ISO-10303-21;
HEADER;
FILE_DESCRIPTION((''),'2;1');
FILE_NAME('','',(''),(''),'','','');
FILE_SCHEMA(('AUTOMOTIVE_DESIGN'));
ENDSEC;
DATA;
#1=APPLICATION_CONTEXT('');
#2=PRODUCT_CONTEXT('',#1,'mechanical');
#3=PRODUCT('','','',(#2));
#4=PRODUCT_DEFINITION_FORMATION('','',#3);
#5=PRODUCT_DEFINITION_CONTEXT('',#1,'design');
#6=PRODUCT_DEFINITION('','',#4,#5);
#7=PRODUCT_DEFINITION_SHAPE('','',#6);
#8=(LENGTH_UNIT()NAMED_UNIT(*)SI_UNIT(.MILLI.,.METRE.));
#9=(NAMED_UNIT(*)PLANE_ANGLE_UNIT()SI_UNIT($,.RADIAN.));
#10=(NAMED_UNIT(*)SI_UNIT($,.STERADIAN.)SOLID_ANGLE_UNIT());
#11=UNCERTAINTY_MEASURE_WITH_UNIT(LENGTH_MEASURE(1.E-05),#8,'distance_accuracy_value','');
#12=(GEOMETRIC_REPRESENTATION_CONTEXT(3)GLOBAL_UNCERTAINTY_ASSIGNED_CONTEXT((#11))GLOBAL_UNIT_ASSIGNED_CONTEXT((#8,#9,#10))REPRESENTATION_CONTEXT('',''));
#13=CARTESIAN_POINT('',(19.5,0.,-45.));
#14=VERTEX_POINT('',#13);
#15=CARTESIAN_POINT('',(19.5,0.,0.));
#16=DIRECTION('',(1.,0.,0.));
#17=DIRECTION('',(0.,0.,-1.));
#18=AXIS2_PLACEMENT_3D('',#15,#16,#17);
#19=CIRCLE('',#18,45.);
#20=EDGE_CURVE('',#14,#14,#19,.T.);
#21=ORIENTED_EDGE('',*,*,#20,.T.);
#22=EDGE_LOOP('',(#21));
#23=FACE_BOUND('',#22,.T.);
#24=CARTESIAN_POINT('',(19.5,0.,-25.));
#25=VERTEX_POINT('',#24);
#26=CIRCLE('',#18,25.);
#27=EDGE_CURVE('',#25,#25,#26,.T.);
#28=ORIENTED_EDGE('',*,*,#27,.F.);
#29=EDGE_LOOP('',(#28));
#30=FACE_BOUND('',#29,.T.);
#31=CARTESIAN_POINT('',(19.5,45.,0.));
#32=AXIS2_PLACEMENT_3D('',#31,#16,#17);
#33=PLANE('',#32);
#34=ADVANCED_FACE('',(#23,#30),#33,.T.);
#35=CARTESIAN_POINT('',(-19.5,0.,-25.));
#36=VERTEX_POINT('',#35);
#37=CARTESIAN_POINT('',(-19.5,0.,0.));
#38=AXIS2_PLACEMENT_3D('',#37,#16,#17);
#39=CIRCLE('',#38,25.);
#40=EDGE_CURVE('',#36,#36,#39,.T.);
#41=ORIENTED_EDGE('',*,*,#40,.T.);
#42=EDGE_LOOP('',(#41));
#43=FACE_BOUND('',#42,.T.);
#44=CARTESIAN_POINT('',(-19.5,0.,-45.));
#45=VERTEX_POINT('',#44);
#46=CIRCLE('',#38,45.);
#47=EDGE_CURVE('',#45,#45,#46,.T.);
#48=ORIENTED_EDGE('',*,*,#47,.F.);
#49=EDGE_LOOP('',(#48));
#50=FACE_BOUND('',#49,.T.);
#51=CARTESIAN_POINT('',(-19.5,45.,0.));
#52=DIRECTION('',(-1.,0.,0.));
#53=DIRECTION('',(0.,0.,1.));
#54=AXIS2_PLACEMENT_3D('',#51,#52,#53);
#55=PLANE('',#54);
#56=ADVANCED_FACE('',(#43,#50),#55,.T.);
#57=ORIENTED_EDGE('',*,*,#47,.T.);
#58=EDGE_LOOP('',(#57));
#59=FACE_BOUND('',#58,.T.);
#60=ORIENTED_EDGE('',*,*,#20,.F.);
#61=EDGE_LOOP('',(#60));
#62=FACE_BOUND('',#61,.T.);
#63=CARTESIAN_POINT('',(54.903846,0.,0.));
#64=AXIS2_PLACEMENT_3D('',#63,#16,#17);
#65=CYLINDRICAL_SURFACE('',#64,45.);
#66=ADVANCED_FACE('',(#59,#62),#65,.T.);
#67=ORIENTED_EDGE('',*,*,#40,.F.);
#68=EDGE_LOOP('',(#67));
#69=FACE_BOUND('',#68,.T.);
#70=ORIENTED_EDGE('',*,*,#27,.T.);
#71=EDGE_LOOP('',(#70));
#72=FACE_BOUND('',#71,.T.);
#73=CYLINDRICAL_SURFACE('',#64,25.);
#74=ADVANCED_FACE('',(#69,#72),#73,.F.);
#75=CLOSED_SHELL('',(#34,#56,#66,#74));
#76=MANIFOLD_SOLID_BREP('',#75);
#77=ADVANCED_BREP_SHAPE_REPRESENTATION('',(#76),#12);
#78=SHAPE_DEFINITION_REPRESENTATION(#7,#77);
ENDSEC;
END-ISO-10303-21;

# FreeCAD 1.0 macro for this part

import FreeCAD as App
import Part
import Sketcher
from FreeCAD import Vector


def add_polygon(sketch, points):
    """Adds a closed chain of lines whose ends are joined by coincident constraints."""
    first, n = sketch.GeometryCount, len(points)
    for a, b in zip(points, points[1:] + points[:1]):
        sketch.addGeometry(Part.LineSegment(App.Vector(*a, 0), App.Vector(*b, 0)), False)
    for i in range(n):
        sketch.addConstraint(Sketcher.Constraint("Coincident", first + i, 2, first + (i + 1) % n, 1))

doc = App.newDocument("Part")
body = doc.addObject("PartDesign::Body", "Body")

# Sketch on XY plane
sketch1 = doc.addObject("Sketcher::SketchObject", "Sketch")
body.addObject(sketch1)
sketch1.AttachmentSupport = (doc.XY_Plane, [""])
sketch1.MapMode = "FlatFace"
add_polygon(sketch1, [(-20, 45), (-20, 25), (20, 25), (20, 45)])  # lines 0-3
sketch1.addConstraint(Sketcher.Constraint("Vertical", 0))
sketch1.addConstraint(Sketcher.Constraint("Horizontal", 1))
sketch1.addConstraint(Sketcher.Constraint("Vertical", 2))
sketch1.addConstraint(Sketcher.Constraint("Horizontal", 3))
sketch1.addConstraint(Sketcher.Constraint("DistanceX", 1, 1, 1, 2, 39.0))
sketch1.addConstraint(Sketcher.Constraint("DistanceY", 0, 2, 0, 1, 20.0))
sketch1.addConstraint(Sketcher.Constraint("DistanceY", -1, 1, 0, 2, 25.0))
sketch1.addConstraint(Sketcher.Constraint("DistanceX", 0, 2, -1, 1, 19.5))
revolution = doc.addObject("PartDesign::Revolution", "Revolution")
body.addObject(revolution)
revolution.Profile = sketch1
revolution.ReferenceAxis = (sketch1, ["H_Axis"])
revolution.Angle = 360

doc.recompute()
